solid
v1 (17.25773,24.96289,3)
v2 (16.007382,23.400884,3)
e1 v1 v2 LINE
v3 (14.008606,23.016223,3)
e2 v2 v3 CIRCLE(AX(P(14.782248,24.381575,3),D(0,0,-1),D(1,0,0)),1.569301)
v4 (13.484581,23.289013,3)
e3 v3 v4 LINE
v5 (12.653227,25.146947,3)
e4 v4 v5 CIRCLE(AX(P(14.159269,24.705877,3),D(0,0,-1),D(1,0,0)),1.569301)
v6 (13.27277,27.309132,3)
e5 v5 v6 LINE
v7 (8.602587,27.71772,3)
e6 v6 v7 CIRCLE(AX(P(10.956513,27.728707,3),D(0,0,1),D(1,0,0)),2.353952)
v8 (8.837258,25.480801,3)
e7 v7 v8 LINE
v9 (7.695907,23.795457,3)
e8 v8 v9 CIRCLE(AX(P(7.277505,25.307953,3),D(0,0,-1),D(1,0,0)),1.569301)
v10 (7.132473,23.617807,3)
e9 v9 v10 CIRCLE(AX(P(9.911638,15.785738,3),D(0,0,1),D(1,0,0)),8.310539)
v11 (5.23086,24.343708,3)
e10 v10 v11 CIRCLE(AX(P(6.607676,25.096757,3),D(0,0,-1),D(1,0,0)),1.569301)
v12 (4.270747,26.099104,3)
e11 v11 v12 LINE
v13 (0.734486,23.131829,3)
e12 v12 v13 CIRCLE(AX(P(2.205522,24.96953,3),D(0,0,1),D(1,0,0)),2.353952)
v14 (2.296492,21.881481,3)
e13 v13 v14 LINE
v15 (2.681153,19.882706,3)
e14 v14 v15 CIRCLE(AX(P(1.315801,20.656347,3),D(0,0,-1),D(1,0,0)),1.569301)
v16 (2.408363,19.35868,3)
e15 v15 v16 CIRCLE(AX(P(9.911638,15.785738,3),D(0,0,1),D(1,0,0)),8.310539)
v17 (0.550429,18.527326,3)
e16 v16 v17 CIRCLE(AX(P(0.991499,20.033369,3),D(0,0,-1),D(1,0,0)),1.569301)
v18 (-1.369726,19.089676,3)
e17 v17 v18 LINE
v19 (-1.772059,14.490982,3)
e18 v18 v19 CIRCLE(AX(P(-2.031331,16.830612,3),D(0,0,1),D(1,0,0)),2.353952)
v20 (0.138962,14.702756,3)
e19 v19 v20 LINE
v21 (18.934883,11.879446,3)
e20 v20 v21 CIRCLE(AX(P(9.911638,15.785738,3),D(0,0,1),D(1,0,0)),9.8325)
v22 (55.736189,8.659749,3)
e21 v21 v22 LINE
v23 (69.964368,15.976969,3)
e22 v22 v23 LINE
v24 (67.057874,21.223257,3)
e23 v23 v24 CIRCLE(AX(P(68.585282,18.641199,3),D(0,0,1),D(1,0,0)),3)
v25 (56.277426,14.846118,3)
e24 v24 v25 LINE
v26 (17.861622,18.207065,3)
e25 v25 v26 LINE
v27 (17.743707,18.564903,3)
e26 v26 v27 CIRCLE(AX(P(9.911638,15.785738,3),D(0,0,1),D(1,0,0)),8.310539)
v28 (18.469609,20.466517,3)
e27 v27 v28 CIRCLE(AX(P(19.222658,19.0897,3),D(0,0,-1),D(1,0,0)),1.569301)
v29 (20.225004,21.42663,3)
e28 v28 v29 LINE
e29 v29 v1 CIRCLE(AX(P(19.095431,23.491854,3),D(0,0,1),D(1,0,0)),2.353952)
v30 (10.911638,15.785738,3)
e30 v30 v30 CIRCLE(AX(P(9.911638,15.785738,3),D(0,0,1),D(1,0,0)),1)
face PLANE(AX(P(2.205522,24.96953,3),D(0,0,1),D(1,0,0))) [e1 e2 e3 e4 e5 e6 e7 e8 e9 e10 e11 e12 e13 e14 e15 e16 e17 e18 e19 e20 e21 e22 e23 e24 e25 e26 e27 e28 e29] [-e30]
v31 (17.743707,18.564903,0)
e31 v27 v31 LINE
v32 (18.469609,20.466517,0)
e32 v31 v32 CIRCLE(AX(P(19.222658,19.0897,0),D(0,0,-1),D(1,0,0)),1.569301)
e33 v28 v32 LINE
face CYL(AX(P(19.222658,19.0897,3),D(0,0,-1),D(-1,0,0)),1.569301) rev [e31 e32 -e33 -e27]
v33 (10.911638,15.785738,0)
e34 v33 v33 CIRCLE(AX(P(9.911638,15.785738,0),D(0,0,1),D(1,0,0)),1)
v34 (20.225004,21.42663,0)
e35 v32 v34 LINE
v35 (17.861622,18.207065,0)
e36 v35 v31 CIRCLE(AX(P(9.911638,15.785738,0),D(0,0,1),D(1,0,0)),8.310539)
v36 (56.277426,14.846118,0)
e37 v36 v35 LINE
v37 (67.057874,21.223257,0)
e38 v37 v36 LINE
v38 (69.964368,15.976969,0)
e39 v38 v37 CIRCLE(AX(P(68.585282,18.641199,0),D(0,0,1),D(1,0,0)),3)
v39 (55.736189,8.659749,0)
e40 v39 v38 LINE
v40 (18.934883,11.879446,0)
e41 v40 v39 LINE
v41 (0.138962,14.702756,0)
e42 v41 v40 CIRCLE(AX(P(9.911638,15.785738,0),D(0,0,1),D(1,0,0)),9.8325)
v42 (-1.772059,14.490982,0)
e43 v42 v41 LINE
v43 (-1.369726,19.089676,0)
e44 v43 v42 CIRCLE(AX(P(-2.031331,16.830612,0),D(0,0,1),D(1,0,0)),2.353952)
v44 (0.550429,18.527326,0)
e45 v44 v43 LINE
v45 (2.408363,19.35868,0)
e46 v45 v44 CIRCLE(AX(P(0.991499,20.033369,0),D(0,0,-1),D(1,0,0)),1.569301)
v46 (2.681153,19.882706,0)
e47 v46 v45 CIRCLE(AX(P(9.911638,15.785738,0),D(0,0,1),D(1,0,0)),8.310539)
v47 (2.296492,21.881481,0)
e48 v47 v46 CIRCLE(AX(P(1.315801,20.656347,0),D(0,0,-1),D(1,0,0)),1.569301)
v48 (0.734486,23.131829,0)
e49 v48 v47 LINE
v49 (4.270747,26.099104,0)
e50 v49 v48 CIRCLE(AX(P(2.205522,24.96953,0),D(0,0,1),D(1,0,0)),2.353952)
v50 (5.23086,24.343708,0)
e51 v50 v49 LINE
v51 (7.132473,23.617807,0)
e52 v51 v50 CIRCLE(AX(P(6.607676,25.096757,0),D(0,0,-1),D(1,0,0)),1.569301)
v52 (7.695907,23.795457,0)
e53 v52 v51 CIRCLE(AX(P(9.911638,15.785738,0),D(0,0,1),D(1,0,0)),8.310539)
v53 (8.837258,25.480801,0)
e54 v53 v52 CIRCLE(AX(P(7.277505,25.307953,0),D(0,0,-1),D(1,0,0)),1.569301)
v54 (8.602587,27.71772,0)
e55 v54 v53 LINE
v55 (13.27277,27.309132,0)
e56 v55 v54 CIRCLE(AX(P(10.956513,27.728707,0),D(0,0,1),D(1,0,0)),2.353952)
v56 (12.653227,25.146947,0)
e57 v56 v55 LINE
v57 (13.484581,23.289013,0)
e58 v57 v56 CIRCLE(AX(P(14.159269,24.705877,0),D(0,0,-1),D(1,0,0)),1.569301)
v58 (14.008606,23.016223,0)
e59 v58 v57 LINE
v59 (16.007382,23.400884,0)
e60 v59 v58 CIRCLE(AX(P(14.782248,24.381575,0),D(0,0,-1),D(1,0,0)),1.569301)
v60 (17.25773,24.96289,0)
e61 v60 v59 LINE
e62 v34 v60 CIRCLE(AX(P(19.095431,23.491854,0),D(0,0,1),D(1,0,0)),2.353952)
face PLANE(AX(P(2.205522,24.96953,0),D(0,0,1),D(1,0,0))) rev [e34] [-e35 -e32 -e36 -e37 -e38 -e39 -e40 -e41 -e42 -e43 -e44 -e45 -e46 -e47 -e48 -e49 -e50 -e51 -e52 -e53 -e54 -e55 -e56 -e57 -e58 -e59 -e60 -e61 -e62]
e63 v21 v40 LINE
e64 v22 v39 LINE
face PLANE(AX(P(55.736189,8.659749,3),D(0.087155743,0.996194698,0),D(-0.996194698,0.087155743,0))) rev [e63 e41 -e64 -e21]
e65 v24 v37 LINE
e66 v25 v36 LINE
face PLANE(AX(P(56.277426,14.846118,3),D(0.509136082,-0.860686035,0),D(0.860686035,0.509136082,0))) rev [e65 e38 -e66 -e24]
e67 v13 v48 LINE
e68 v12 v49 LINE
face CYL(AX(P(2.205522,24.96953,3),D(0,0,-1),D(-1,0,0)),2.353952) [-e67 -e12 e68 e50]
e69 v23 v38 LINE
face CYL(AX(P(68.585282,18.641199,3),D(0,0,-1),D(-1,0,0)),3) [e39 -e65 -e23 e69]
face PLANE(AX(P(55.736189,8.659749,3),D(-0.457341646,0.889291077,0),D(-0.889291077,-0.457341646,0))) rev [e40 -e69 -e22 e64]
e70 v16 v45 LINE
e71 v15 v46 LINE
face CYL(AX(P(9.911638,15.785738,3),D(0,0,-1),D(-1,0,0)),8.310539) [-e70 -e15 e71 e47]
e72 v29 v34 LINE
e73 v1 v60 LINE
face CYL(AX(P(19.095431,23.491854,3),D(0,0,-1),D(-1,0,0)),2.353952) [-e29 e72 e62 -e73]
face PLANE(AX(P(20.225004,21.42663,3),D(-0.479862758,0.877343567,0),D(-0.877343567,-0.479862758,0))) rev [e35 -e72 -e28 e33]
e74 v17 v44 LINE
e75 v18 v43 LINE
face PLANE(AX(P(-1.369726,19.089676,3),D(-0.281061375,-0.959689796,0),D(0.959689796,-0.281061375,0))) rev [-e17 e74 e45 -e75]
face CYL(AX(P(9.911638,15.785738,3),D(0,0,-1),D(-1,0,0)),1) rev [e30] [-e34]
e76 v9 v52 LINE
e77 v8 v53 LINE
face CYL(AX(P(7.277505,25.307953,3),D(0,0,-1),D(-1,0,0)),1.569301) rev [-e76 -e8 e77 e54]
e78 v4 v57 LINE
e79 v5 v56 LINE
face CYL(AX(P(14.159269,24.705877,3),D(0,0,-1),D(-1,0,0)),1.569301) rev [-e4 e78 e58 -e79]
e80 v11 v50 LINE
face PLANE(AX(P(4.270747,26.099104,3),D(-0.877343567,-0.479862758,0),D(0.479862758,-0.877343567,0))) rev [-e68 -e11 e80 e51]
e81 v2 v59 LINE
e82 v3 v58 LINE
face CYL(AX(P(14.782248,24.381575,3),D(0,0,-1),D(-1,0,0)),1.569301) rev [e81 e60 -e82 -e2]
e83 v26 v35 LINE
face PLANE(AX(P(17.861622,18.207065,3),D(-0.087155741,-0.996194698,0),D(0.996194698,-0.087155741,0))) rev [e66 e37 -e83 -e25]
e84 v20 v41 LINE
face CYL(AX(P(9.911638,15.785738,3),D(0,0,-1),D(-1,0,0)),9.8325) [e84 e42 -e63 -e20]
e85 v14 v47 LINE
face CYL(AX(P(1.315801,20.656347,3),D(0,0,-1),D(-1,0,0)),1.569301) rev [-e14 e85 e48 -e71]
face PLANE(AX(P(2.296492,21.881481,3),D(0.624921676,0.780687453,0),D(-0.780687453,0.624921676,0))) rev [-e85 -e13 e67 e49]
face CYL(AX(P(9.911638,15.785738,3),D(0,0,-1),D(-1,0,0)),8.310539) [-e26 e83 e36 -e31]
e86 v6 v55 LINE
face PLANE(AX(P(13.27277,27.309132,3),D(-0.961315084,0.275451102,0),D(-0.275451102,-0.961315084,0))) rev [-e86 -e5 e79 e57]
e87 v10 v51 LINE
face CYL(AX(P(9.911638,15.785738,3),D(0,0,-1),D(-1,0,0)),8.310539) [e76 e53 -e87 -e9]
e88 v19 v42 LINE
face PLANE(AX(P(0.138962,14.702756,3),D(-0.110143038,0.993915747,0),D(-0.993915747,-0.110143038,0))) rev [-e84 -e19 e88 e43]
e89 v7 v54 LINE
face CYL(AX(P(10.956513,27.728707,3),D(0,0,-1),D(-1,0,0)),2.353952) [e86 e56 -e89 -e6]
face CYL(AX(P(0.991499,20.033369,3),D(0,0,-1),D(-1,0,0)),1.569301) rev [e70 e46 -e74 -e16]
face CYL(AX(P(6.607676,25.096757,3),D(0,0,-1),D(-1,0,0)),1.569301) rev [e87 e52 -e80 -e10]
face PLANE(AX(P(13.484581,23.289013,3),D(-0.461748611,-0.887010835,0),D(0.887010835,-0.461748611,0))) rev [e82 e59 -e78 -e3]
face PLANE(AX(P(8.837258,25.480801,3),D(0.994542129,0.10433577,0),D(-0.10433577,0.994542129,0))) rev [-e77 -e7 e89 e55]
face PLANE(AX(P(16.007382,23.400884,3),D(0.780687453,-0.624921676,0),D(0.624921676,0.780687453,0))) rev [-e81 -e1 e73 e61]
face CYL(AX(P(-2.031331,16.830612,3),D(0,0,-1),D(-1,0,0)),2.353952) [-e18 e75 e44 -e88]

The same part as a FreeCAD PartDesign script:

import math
import FreeCAD as App
import Part
import Sketcher
from FreeCAD import Vector
Q = App.Units.Quantity

doc = App.newDocument("Part")
body = doc.addObject("PartDesign::Body", "Body")

# Sketch on XY plane
sketch1 = body.newObject("Sketcher::SketchObject", "Sketch")
sketch1.AttachmentSupport = (doc.getObject("XY_Plane"), [""])
sketch1.MapMode = "FlatFace"
sketch1.addGeometry([
    Part.LineSegment(Vector(56.277426, 14.846118, 0), Vector(17.861622, 18.207065, 0)),  # 0
    Part.ArcOfCircle(Part.Circle(Vector(9.911886, 15.785816, 0), Vector(0, 0, 1), 8.310279), math.radians(16.939147), math.radians(19.537001)),  # 1
    Part.ArcOfCircle(Part.Circle(Vector(19.222658, 19.0897, 0), Vector(0, 0, 1), 1.569301), math.radians(118.676439), math.radians(199.53694)),  # 2
    Part.LineSegment(Vector(18.469609, 20.466517, 0), Vector(20.225004, 21.42663, 0)),  # 3
    Part.ArcOfCircle(Part.Circle(Vector(19.095431, 23.491854, 0), Vector(0, 0, 1), 2.353952), math.radians(-61.323561), math.radians(-56.000487)),  # 4
    Part.ArcOfCircle(Part.Circle(Vector(19.095421, 23.491868, 0), Vector(0, 0, 1), 2.353969), math.radians(-56.000484), math.radians(-55.26743)),  # 5
    Part.ArcOfCircle(Part.Circle(Vector(19.095431, 23.491854, 0), Vector(0, 0, 1), 2.353952), math.radians(-55.267427), math.radians(135.267427)),  # 6
    Part.ArcOfCircle(Part.Circle(Vector(19.095433, 23.491852, 0), Vector(0, 0, 1), 2.353955), math.radians(135.267428), math.radians(136.000486)),  # 7
    Part.ArcOfCircle(Part.Circle(Vector(19.095431, 23.491854, 0), Vector(0, 0, 1), 2.353952), math.radians(136.000487), math.radians(141.323561)),  # 8
    Part.LineSegment(Vector(17.25773, 24.96289, 0), Vector(16.007382, 23.400884, 0)),  # 9
    Part.ArcOfCircle(Part.Circle(Vector(14.782248, 24.381575, 0), Vector(0, 0, 1), 1.569301), math.radians(-119.53694), math.radians(-38.676439)),  # 10
    Part.LineSegment(Vector(14.008606, 23.016223, 0), Vector(13.484581, 23.289013, 0)),  # 11
    Part.ArcOfCircle(Part.Circle(Vector(14.159269, 24.705877, 0), Vector(0, 0, 1), 1.569301), math.radians(163.676439), math.radians(244.53694)),  # 12
    Part.LineSegment(Vector(12.653227, 25.146947, 0), Vector(13.27277, 27.309132, 0)),  # 13
    Part.ArcOfCircle(Part.Circle(Vector(10.956513, 27.728707, 0), Vector(0, 0, 1), 2.353952), math.radians(-10.267427), math.radians(180.267427)),  # 14
    Part.LineSegment(Vector(8.602587, 27.71772, 0), Vector(8.837258, 25.480801, 0)),  # 15
    Part.ArcOfCircle(Part.Circle(Vector(7.277505, 25.307953, 0), Vector(0, 0, 1), 1.569301), math.radians(-74.53694), math.radians(6.323561)),  # 16
    Part.ArcOfCircle(Part.Circle(Vector(9.911638, 15.785738, 0), Vector(0, 0, 1), 8.310539), math.radians(105.463059), math.radians(109.536941)),  # 17
    Part.ArcOfCircle(Part.Circle(Vector(6.607676, 25.096757, 0), Vector(0, 0, 1), 1.569301), math.radians(-151.323561), math.radians(-70.46306)),  # 18
    Part.LineSegment(Vector(5.23086, 24.343708, 0), Vector(4.270747, 26.099104, 0)),  # 19
    Part.ArcOfCircle(Part.Circle(Vector(2.205522, 24.96953, 0), Vector(0, 0, 1), 2.353952), math.radians(28.676439), math.radians(33.999513)),  # 20
    Part.ArcOfCircle(Part.Circle(Vector(2.205508, 24.96952, 0), Vector(0, 0, 1), 2.353969), math.radians(33.999516), math.radians(34.73257)),  # 21
    Part.ArcOfCircle(Part.Circle(Vector(2.205522, 24.96953, 0), Vector(0, 0, 1), 2.353952), math.radians(34.732572), math.radians(225.267428)),  # 22
    Part.ArcOfCircle(Part.Circle(Vector(2.205512, 24.96952, 0), Vector(0, 0, 1), 2.353938), math.radians(-134.732574), math.radians(-133.99951)),  # 23
    Part.ArcOfCircle(Part.Circle(Vector(2.205522, 24.96953, 0), Vector(0, 0, 1), 2.353952), math.radians(-133.999514), math.radians(-128.676439)),  # 24
    Part.LineSegment(Vector(0.734486, 23.131829, 0), Vector(2.296492, 21.881481, 0)),  # 25
    Part.ArcOfCircle(Part.Circle(Vector(1.315801, 20.656347, 0), Vector(0, 0, 1), 1.569301), math.radians(-29.536941), math.radians(51.323561)),  # 26
    Part.ArcOfCircle(Part.Circle(Vector(9.911638, 15.785738, 0), Vector(0, 0, 1), 8.310539), math.radians(150.46306), math.radians(154.536941)),  # 27
    Part.ArcOfCircle(Part.Circle(Vector(0.991499, 20.033369, 0), Vector(0, 0, 1), 1.569301), math.radians(-106.323561), math.radians(-25.46306)),  # 28
    Part.LineSegment(Vector(0.550429, 18.527326, 0), Vector(-1.369726, 19.089676, 0)),  # 29
    Part.ArcOfCircle(Part.Circle(Vector(-2.03133, 16.830613, 0), Vector(0, 0, 1), 2.353951), math.radians(73.676438), math.radians(78.999514)),  # 30
    Part.ArcOfCircle(Part.Circle(Vector(-2.031332, 16.830604, 0), Vector(0, 0, 1), 2.35396), math.radians(78.999513), math.radians(79.73257)),  # 31
    Part.ArcOfCircle(Part.Circle(Vector(-2.031331, 16.830612, 0), Vector(0, 0, 1), 2.353952), math.radians(79.732573), math.radians(270.267427)),  # 32
    Part.ArcOfCircle(Part.Circle(Vector(-2.03133, 16.830582, 0), Vector(0, 0, 1), 2.353921), math.radians(-89.732576), math.radians(-88.999507)),  # 33
    Part.ArcOfCircle(Part.Circle(Vector(-2.03133, 16.830612, 0), Vector(0, 0, 1), 2.353951), math.radians(-88.999514), math.radians(-83.676438)),  # 34
    Part.LineSegment(Vector(-1.772059, 14.490982, 0), Vector(0.138962, 14.702756, 0)),  # 35
    Part.ArcOfCircle(Part.Circle(Vector(9.911638, 15.785738, 0), Vector(0, 0, 1), 9.8325), math.radians(-173.676439), math.radians(-23.40848)),  # 36
    Part.LineSegment(Vector(18.934883, 11.879446, 0), Vector(55.736189, 8.659749, 0)),  # 37
    Part.LineSegment(Vector(55.736189, 8.659749, 0), Vector(69.964368, 15.976969, 0)),  # 38
    Part.ArcOfCircle(Part.Circle(Vector(68.585282, 18.641199, 0), Vector(0, 0, 1), 3), math.radians(-62.632553), math.radians(120.606302)),  # 39
    Part.LineSegment(Vector(67.057874, 21.223257, 0), Vector(56.277426, 14.846118, 0)),  # 40
    Part.Circle(Vector(9.911638, 15.785738, 0), Vector(0, 0, 1), 1),  # 41
], False)
sketch1.addConstraint([
    Sketcher.Constraint("Coincident", 0, 2, 1, 1),
    Sketcher.Constraint("Coincident", 1, 2, 2, 2),
    Sketcher.Constraint("Coincident", 2, 1, 3, 1),
    Sketcher.Constraint("Coincident", 3, 2, 4, 1),
    Sketcher.Constraint("Coincident", 4, 2, 5, 1),
    Sketcher.Constraint("Coincident", 5, 2, 6, 1),
    Sketcher.Constraint("Coincident", 6, 2, 7, 1),
    Sketcher.Constraint("Coincident", 7, 2, 8, 1),
    Sketcher.Constraint("Coincident", 8, 2, 9, 1),
    Sketcher.Constraint("Coincident", 9, 2, 10, 2),
    Sketcher.Constraint("Coincident", 10, 1, 11, 1),
    Sketcher.Constraint("Coincident", 11, 2, 12, 2),
    Sketcher.Constraint("Coincident", 12, 1, 13, 1),
    Sketcher.Constraint("Coincident", 13, 2, 14, 1),
    Sketcher.Constraint("Coincident", 14, 2, 15, 1),
    Sketcher.Constraint("Coincident", 15, 2, 16, 2),
    Sketcher.Constraint("Coincident", 16, 1, 17, 1),
    Sketcher.Constraint("Coincident", 17, 2, 18, 2),
    Sketcher.Constraint("Coincident", 18, 1, 19, 1),
    Sketcher.Constraint("Coincident", 19, 2, 20, 1),
    Sketcher.Constraint("Coincident", 20, 2, 21, 1),
    Sketcher.Constraint("Coincident", 21, 2, 22, 1),
    Sketcher.Constraint("Coincident", 22, 2, 23, 1),
    Sketcher.Constraint("Coincident", 23, 2, 24, 1),
    Sketcher.Constraint("Coincident", 24, 2, 25, 1),
    Sketcher.Constraint("Coincident", 25, 2, 26, 2),
    Sketcher.Constraint("Coincident", 26, 1, 27, 1),
    Sketcher.Constraint("Coincident", 27, 2, 28, 2),
    Sketcher.Constraint("Coincident", 28, 1, 29, 1),
    Sketcher.Constraint("Coincident", 29, 2, 30, 1),
    Sketcher.Constraint("Coincident", 30, 2, 31, 1),
    Sketcher.Constraint("Coincident", 31, 2, 32, 1),
    Sketcher.Constraint("Coincident", 32, 2, 33, 1),
    Sketcher.Constraint("Coincident", 33, 2, 34, 1),
    Sketcher.Constraint("Coincident", 34, 2, 35, 1),
    Sketcher.Constraint("Coincident", 35, 2, 36, 1),
    Sketcher.Constraint("Coincident", 36, 2, 37, 1),
    Sketcher.Constraint("Coincident", 37, 2, 38, 1),
    Sketcher.Constraint("Coincident", 38, 2, 39, 1),
    Sketcher.Constraint("Coincident", 39, 2, 40, 1),
    Sketcher.Constraint("Coincident", 40, 2, 0, 1),
    Sketcher.Constraint("Coincident", 6, 3, 4, 3),
    Sketcher.Constraint("Coincident", 7, 3, 4, 3),
    Sketcher.Constraint("Coincident", 8, 3, 4, 3),
    Sketcher.Constraint("Coincident", 22, 3, 20, 3),
    Sketcher.Constraint("Coincident", 23, 3, 21, 3),
    Sketcher.Constraint("Coincident", 24, 3, 20, 3),
    Sketcher.Constraint("Coincident", 27, 3, 17, 3),
    Sketcher.Constraint("Coincident", 31, 3, 30, 3),
    Sketcher.Constraint("Coincident", 32, 3, 30, 3),
    Sketcher.Constraint("Coincident", 34, 3, 30, 3),
    Sketcher.Constraint("Coincident", 36, 3, 17, 3),
    Sketcher.Constraint("Coincident", 41, 3, 17, 3),
    Sketcher.Constraint("Diameter", 41, Q("2 mm")),
    Sketcher.Constraint("Radius", 39, Q("3 mm")),
    Sketcher.Constraint("Radius", 2, Q("1.569301 mm")),
    Sketcher.Constraint("Radius", 10, Q("1.569301 mm")),
    Sketcher.Constraint("Radius", 12, Q("1.569301 mm")),
    Sketcher.Constraint("Radius", 16, Q("1.569301 mm")),
    Sketcher.Constraint("Radius", 18, Q("1.569301 mm")),
    Sketcher.Constraint("Radius", 26, Q("1.569301 mm")),
    Sketcher.Constraint("Radius", 28, Q("1.569301 mm")),
    Sketcher.Constraint("Radius", 36, Q("9.8325 mm")),
    Sketcher.Constraint("Radius", 1, Q("8.310279 mm")),
    Sketcher.Constraint("Radius", 4, Q("2.353952 mm")),
    Sketcher.Constraint("Radius", 5, Q("2.353969 mm")),
    Sketcher.Constraint("Radius", 6, Q("2.353952 mm")),
    Sketcher.Constraint("Radius", 14, Q("2.353952 mm")),
    Sketcher.Constraint("Radius", 17, Q("8.310539 mm")),
    Sketcher.Constraint("Radius", 21, Q("2.353969 mm")),
    Sketcher.Constraint("Radius", 22, Q("2.353952 mm")),
    Sketcher.Constraint("Radius", 24, Q("2.353952 mm")),
    Sketcher.Constraint("Radius", 27, Q("8.310539 mm")),
    Sketcher.Constraint("Radius", 30, Q("2.353951 mm")),
    Sketcher.Constraint("Radius", 33, Q("2.353921 mm")),
    Sketcher.Constraint("Radius", 34, Q("2.353951 mm")),
    Sketcher.Constraint("DistanceY", -1, 1, 2, 3, Q("19.0897 mm")),
    Sketcher.Constraint("DistanceX", -1, 1, 26, 3, Q("1.315801 mm")),
    Sketcher.Constraint("DistanceX", -1, 1, 28, 3, Q("0.991499 mm")),
    Sketcher.Constraint("DistanceY", -1, 1, 39, 3, Q("18.641199 mm")),
    Sketcher.Constraint("DistanceY", -1, 1, 15, 2, Q("25.480801 mm")),
    Sketcher.Constraint("Distance", 35, Q("1.922719 mm")),
    Sketcher.Constraint("Distance", 37, Q("36.941881 mm")),
    Sketcher.Constraint("DistanceX", -1, 1, 4, 3, Q("19.095431 mm")),
    Sketcher.Constraint("DistanceY", -1, 1, 5, 3, Q("23.491868 mm")),
    Sketcher.Constraint("DistanceX", -1, 1, 12, 3, Q("14.159269 mm")),
    Sketcher.Constraint("DistanceX", -1, 1, 17, 3, Q("9.911638 mm")),
    Sketcher.Constraint("DistanceY", -1, 1, 17, 3, Q("15.785738 mm")),
    Sketcher.Constraint("DistanceX", -1, 1, 20, 3, Q("2.205522 mm")),
    Sketcher.Constraint("DistanceY", -1, 1, 20, 3, Q("24.96953 mm")),
    Sketcher.Constraint("DistanceX", 30, 3, -1, 1, Q("2.03133 mm")),
    Sketcher.Constraint("DistanceY", -1, 1, 33, 3, Q("16.830582 mm")),
    Sketcher.Constraint("DistanceX", -1, 1, 2, 1, Q("18.469609 mm")),
    Sketcher.Constraint("DistanceY", -1, 1, 3, 2, Q("21.42663 mm")),
    Sketcher.Constraint("DistanceY", -1, 1, 4, 2, Q("21.540329 mm")),
    Sketcher.Constraint("DistanceY", -1, 1, 5, 2, Q("21.557329 mm")),
    Sketcher.Constraint("DistanceX", -1, 1, 8, 2, Q("17.25773 mm")),
    Sketcher.Constraint("DistanceX", -1, 1, 9, 2, Q("16.007382 mm")),
    Sketcher.Constraint("DistanceX", -1, 1, 11, 2, Q("13.484581 mm")),
    Sketcher.Constraint("DistanceX", -1, 1, 13, 2, Q("13.27277 mm")),
    Sketcher.Constraint("DistanceY", -1, 1, 13, 2, Q("27.309132 mm")),
    Sketcher.Constraint("DistanceY", -1, 1, 14, 2, Q("27.71772 mm")),
    Sketcher.Constraint("DistanceX", -1, 1, 18, 1, Q("5.23086 mm")),
    Sketcher.Constraint("DistanceY", -1, 1, 24, 2, Q("23.131829 mm")),
    Sketcher.Constraint("DistanceX", -1, 1, 25, 2, Q("2.296492 mm")),
    Sketcher.Constraint("DistanceY", -1, 1, 27, 2, Q("19.35868 mm")),
    Sketcher.Constraint("DistanceX", -1, 1, 28, 1, Q("0.550429 mm")),
    Sketcher.Constraint("DistanceY", -1, 1, 30, 2, Q("19.141312 mm")),
    Sketcher.Constraint("DistanceY", -1, 1, 31, 2, Q("19.146869 mm")),
    Sketcher.Constraint("DistanceX", 33, 2, -1, 1, Q("1.990228 mm")),
    Sketcher.Constraint("DistanceX", -1, 1, 35, 2, Q("0.138962 mm")),
    Sketcher.Constraint("DistanceX", -1, 1, 37, 2, Q("55.736189 mm")),
    Sketcher.Constraint("DistanceY", -1, 1, 37, 2, Q("8.659749 mm")),
    Sketcher.Constraint("DistanceX", -1, 1, 38, 2, Q("69.964368 mm")),
    Sketcher.Constraint("DistanceY", -1, 1, 38, 2, Q("15.976969 mm")),
    Sketcher.Constraint("Distance", 0, Q("38.562546 mm")),
    Sketcher.Constraint("Distance", 3, Q("2.000808 mm")),
    Sketcher.Constraint("Distance", 9, Q("2.000808 mm")),
    Sketcher.Constraint("Distance", 11, Q("0.590777 mm")),
    Sketcher.Constraint("Distance", 13, Q("2.249195 mm")),
    Sketcher.Constraint("Distance", 15, Q("2.249195 mm")),
    Sketcher.Constraint("Distance", 19, Q("2.000808 mm")),
    Sketcher.Constraint("Distance", 29, Q("2.000808 mm")),
    Sketcher.Constraint("Distance", 40, Q("12.525413 mm")),
    Sketcher.Constraint("DistanceX", -1, 1, 1, 3, Q("9.911886 mm")),
    Sketcher.Constraint("DistanceX", -1, 1, 10, 3, Q("14.782248 mm")),
    Sketcher.Constraint("DistanceY", -1, 1, 12, 3, Q("24.705877 mm")),
    Sketcher.Constraint("DistanceX", -1, 1, 14, 3, Q("10.956513 mm")),
    Sketcher.Constraint("DistanceX", -1, 1, 18, 3, Q("6.607676 mm")),
    Sketcher.Constraint("DistanceX", -1, 1, 0, 2, Q("17.861622 mm")),
    Sketcher.Constraint("DistanceX", -1, 1, 1, 2, Q("17.743707 mm")),
    Sketcher.Constraint("DistanceX", -1, 1, 6, 2, Q("17.423184 mm")),
    Sketcher.Constraint("DistanceX", -1, 1, 7, 2, Q("17.402125 mm")),
    Sketcher.Constraint("DistanceX", -1, 1, 16, 1, Q("7.695907 mm")),
    Sketcher.Constraint("DistanceX", -1, 1, 17, 2, Q("7.132473 mm")),
    Sketcher.Constraint("DistanceX", -1, 1, 20, 2, Q("4.157048 mm")),
    Sketcher.Constraint("DistanceX", -1, 1, 21, 2, Q("4.140047 mm")),
    Sketcher.Constraint("DistanceX", -1, 1, 22, 2, Q("0.548814 mm")),
    Sketcher.Constraint("DistanceX", -1, 1, 23, 2, Q("0.570344 mm")),
    Sketcher.Constraint("DistanceX", -1, 1, 26, 1, Q("2.681153 mm")),
    Sketcher.Constraint("DistanceX", 32, 2, -1, 1, Q("2.020343 mm")),
    Sketcher.Constraint("DistanceX", -1, 1, 39, 2, Q("67.057874 mm")),
])
pad1 = body.newObject("PartDesign::Pad", "Pad")
pad1.Profile = sketch1
pad1.Length = 3

doc.recompute()
